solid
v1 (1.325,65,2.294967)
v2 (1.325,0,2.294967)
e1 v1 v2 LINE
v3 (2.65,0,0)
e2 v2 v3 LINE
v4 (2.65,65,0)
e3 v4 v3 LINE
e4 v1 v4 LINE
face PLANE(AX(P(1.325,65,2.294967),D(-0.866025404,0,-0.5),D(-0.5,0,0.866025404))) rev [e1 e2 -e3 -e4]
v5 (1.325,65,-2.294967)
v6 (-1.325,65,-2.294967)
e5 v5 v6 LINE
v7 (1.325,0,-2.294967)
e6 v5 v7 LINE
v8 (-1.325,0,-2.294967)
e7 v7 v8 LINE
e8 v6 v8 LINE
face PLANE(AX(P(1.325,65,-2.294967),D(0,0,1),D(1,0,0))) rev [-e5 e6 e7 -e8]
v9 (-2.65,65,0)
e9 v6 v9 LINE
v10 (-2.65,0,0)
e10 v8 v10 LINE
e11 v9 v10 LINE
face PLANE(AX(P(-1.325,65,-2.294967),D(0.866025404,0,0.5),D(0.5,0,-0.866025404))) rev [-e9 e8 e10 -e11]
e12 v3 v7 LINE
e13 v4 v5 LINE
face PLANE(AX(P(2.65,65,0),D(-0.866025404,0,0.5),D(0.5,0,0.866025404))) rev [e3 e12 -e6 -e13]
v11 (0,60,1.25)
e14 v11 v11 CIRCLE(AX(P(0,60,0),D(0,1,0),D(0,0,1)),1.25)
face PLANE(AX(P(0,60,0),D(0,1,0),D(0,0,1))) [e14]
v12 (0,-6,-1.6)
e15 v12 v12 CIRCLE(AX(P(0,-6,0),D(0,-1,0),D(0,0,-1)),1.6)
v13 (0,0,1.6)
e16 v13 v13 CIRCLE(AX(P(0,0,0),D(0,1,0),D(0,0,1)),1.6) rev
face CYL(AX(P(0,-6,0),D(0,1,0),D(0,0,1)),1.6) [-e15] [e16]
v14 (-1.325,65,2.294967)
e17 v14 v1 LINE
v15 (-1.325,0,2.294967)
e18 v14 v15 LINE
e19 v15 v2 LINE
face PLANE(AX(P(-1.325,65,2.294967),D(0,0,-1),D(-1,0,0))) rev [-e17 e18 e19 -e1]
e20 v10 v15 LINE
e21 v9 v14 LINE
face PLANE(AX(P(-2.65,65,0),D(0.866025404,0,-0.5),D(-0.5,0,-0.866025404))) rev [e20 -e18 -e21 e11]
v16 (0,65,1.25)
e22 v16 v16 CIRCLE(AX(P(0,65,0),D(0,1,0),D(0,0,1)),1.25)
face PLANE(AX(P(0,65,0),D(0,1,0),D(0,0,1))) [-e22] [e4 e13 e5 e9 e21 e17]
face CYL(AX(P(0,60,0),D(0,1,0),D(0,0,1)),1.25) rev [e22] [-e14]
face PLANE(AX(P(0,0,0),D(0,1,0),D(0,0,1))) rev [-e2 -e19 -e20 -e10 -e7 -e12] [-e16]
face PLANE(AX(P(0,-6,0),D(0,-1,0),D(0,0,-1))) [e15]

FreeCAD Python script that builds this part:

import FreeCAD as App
import Part
import Sketcher
from FreeCAD import Vector
Q = App.Units.Quantity

doc = App.newDocument("Part")
params = doc.addObject("Spreadsheet::Sheet", "Params")
for row, (alias, value) in enumerate([
    ("sketch1_width", "2.65 mm"),
    ("pad1_length", "65 mm"),
    ("sketch2_diameter", "3.2 mm"),
    ("pad2_length", "6 mm"),
    ("sketch3_diameter", "2.5 mm"),
    ("pocket1_length", "5 mm"),
], start=1):
    params.set(f"A{row}", alias)
    params.set(f"B{row}", "=" + value)
    params.setAlias(f"B{row}", alias)

body = doc.addObject("PartDesign::Body", "Body")

sketch1 = body.newObject("Sketcher::SketchObject", "Sketch")
sketch1.AttachmentSupport = (doc.getObject("XZ_Plane"), [""])
sketch1.MapMode = "FlatFace"
sketch1.addGeometry([
    Part.LineSegment(Vector(1.325, 2.294967, 0), Vector(2.65, 0, 0)),
    Part.LineSegment(Vector(2.65, 0, 0), Vector(1.325, -2.294967, 0)),
    Part.LineSegment(Vector(1.325, -2.294967, 0), Vector(-1.325, -2.294967, 0)),
    Part.LineSegment(Vector(-1.325, -2.294967, 0), Vector(-2.65, 0, 0)),
    Part.LineSegment(Vector(-2.65, 0, 0), Vector(-1.325, 2.294967, 0)),
    Part.LineSegment(Vector(-1.325, 2.294967, 0), Vector(1.325, 2.294967, 0)),
], False)
sketch1.addConstraint([
    Sketcher.Constraint("Coincident", 0, 2, 1, 1),
    Sketcher.Constraint("Coincident", 1, 2, 2, 1),
    Sketcher.Constraint("Coincident", 2, 2, 3, 1),
    Sketcher.Constraint("Coincident", 3, 2, 4, 1),
    Sketcher.Constraint("Coincident", 4, 2, 5, 1),
    Sketcher.Constraint("Coincident", 5, 2, 0, 1),
    Sketcher.Constraint("Horizontal", 2),
    Sketcher.Constraint("Horizontal", 5),
    Sketcher.Constraint("Symmetric", 0, 2, 3, 2, -1, 1),
    Sketcher.Constraint("Symmetric", 1, 2, 4, 2, -1, 1),
    Sketcher.Constraint("PointOnObject", 0, 2, -1),
    Sketcher.Constraint("Parallel", 0, 3),
    Sketcher.Constraint("Vertical", 2, 2, 4, 2),
    Sketcher.Constraint("Angle", 0, Q("-60 deg")),
    Sketcher.Constraint("DistanceX", 2, 2, 2, 1, Q("2.65 mm")),
    Sketcher.Constraint("DistanceX", 3, 2, 0, 2, Q("5.3 mm")),
])
sketch1.setExpression("Constraints[14]", "Params.sketch1_width")
pad1 = body.newObject("PartDesign::Pad", "Pad")
pad1.Profile = sketch1
pad1.setExpression("Length", "Params.pad1_length")
pad1.Reversed = True

sketch2 = body.newObject("Sketcher::SketchObject", "Sketch001")
sketch2.AttachmentSupport = (doc.getObject("XZ_Plane"), [""])
sketch2.MapMode = "FlatFace"
sketch2.addGeometry(Part.Circle(Vector(0, 0, 0), Vector(0, 0, 1), 1.6), False)
sketch2.addConstraint([
    Sketcher.Constraint("Coincident", 0, 3, -1, 1),
    Sketcher.Constraint("Diameter", 0, Q("3.2 mm")),
])
sketch2.setExpression("Constraints[1]", "Params.sketch2_diameter")
pad2 = body.newObject("PartDesign::Pad", "Pad001")
pad2.Profile = sketch2
pad2.setExpression("Length", "Params.pad2_length")

sketch3 = body.newObject("Sketcher::SketchObject", "Sketch002")
sketch3.AttachmentSupport = (doc.getObject("XZ_Plane"), [""])
sketch3.MapMode = "FlatFace"
sketch3.AttachmentOffset = App.Placement(Vector(0, 0, -65), App.Rotation())
sketch3.addGeometry(Part.Circle(Vector(0, 0, 0), Vector(0, 0, 1), 1.25), False)
sketch3.addConstraint([
    Sketcher.Constraint("Coincident", 0, 3, -1, 1),
    Sketcher.Constraint("Diameter", 0, Q("2.5 mm")),
])
sketch3.setExpression("Constraints[1]", "Params.sketch3_diameter")
pocket1 = body.newObject("PartDesign::Pocket", "Pocket")
pocket1.Profile = sketch3
pocket1.setExpression("Length", "Params.pocket1_length")
pocket1.Reversed = True

doc.recompute()
